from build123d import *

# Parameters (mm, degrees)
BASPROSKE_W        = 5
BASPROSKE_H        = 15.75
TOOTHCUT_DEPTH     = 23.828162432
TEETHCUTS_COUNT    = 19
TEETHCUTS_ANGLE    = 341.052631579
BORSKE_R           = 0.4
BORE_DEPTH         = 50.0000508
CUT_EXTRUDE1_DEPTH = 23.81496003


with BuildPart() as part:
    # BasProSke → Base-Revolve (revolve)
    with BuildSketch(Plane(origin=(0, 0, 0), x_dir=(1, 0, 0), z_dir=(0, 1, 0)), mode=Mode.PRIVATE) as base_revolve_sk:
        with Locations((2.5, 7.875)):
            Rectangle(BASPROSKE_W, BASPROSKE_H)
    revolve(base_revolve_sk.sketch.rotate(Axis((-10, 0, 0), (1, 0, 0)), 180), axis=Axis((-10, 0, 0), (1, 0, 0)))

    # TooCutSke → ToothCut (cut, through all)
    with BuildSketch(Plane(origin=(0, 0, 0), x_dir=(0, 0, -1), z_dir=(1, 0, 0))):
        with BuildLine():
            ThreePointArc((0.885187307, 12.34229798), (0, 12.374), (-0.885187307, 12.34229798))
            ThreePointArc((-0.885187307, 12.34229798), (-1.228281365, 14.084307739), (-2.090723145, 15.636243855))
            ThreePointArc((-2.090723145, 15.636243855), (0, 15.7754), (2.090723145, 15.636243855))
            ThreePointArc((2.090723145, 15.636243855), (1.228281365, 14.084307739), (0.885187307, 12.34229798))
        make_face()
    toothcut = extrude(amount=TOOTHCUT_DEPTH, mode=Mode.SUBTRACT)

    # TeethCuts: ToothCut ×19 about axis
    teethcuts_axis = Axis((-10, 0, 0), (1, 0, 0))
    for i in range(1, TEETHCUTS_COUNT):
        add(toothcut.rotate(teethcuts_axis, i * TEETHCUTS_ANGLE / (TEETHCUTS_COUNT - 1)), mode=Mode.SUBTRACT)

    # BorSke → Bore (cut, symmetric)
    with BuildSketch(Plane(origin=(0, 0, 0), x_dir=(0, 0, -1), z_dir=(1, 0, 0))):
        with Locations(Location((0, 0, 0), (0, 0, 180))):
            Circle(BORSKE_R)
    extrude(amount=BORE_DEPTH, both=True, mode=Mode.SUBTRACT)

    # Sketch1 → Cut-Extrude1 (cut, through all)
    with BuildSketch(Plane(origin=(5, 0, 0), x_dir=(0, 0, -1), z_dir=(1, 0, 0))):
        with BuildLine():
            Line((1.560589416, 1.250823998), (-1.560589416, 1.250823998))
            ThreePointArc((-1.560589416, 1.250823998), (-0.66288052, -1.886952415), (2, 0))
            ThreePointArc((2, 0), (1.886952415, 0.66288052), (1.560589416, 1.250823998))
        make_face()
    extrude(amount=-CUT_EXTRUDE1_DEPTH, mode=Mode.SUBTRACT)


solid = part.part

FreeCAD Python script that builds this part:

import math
import FreeCAD as App
import Part
import Sketcher

V = App.Vector
Q = App.Units.Quantity

doc = App.newDocument("Part")
body = doc.addObject("PartDesign::Body", "Body")

# Sketch on XZ plane
sketch1 = body.newObject("Sketcher::SketchObject", "Sketch")
sketch1.AttachmentSupport = (doc.getObject("XZ_Plane"), [""])
sketch1.MapMode = "FlatFace"
sketch1.addGeometry(Part.LineSegment(V(0, -15.75, 0), V(0, 0, 0)), False)
sketch1.addGeometry(Part.LineSegment(V(0, 0, 0), V(5, 0, 0)), False)
sketch1.addGeometry(Part.LineSegment(V(5, 0, 0), V(5, -15.75, 0)), False)
sketch1.addGeometry(Part.LineSegment(V(5, -15.75, 0), V(0, -15.75, 0)), False)
sketch1.addConstraint(Sketcher.Constraint("Coincident", 0, 2, 1, 1))
sketch1.addConstraint(Sketcher.Constraint("Coincident", 1, 2, 2, 1))
sketch1.addConstraint(Sketcher.Constraint("Coincident", 2, 2, 3, 1))
sketch1.addConstraint(Sketcher.Constraint("Coincident", 3, 2, 0, 1))
sketch1.addConstraint(Sketcher.Constraint("Vertical", 0))
sketch1.addConstraint(Sketcher.Constraint("Horizontal", 1))
sketch1.addConstraint(Sketcher.Constraint("Vertical", 2))
sketch1.addConstraint(Sketcher.Constraint("Horizontal", 3))
sketch1.addConstraint(Sketcher.Constraint("Coincident", 0, 2, -1, 1))
sketch1.addConstraint(Sketcher.Constraint("DistanceX", 1, 1, 1, 2, Q("5 mm")))
sketch1.addConstraint(Sketcher.Constraint("DistanceY", 0, 1, 0, 2, Q("15.75 mm")))
revolution = body.newObject("PartDesign::Revolution", "Revolution")
revolution.Profile = sketch1
revolution.ReferenceAxis = (sketch1, ["H_Axis"])
revolution.Angle = 360

# Sketch on YZ plane
sketch2 = body.newObject("Sketcher::SketchObject", "Sketch001")
sketch2.AttachmentSupport = (doc.getObject("YZ_Plane"), [""])
sketch2.MapMode = "FlatFace"
sketch2.addGeometry(Part.ArcOfCircle(Part.Circle(V(0, 0, 0), V(0, 0, 1), 12.374), math.radians(-4.102219), math.radians(4.102219)), False)
sketch2.addGeometry(Part.ArcOfCircle(Part.Circle(V(12.125271, -6.581054, 0), V(0, 0, 1), 5.7), math.radians(51.978286), math.radians(87.817946)), False)
sketch2.addGeometry(Part.ArcOfCircle(Part.Circle(V(0, 0, 0), V(0, 0, 1), 15.7754), math.radians(-7.61585), math.radians(7.61585)), False)
sketch2.addGeometry(Part.ArcOfCircle(Part.Circle(V(12.125271, 6.581054, 0), V(0, 0, 1), 5.7), math.radians(-87.817946), math.radians(-51.978286)), False)
sketch2.addConstraint(Sketcher.Constraint("Coincident", 0, 1, 1, 2))
sketch2.addConstraint(Sketcher.Constraint("Coincident", 1, 1, 2, 1))
sketch2.addConstraint(Sketcher.Constraint("Coincident", 2, 2, 3, 2))
sketch2.addConstraint(Sketcher.Constraint("Coincident", 3, 1, 0, 2))
sketch2.addConstraint(Sketcher.Constraint("Coincident", 0, 3, -1, 1))
sketch2.addConstraint(Sketcher.Constraint("Coincident", 2, 3, -1, 1))
sketch2.addConstraint(Sketcher.Constraint("Equal", 1, 3))
sketch2.addConstraint(Sketcher.Constraint("Symmetric", 1, 3, 3, 3, -1))
sketch2.addConstraint(Sketcher.Constraint("Radius", 1, Q("5.7 mm")))
sketch2.addConstraint(Sketcher.Constraint("Radius", 0, Q("12.374 mm")))
sketch2.addConstraint(Sketcher.Constraint("Radius", 2, Q("15.7754 mm")))
sketch2.addConstraint(Sketcher.Constraint("DistanceX", -1, 1, 1, 3, Q("12.125271 mm")))
sketch2.addConstraint(Sketcher.Constraint("DistanceY", 1, 3, 3, 3, Q("13.162108 mm")))
pocket1 = body.newObject("PartDesign::Pocket", "Pocket")
pocket1.Profile = sketch2
pocket1.Type = "ThroughAll"
pocket1.Reversed = True
doc.recompute()

polarpattern = body.newObject("PartDesign::PolarPattern", "PolarPattern")
polarpattern.Originals = [pocket1]
polarpattern.Axis = (doc.getObject("X_Axis"), [""])
polarpattern.Angle = 360
polarpattern.Occurrences = 19
body.Tip = polarpattern

# Sketch on YZ plane
sketch3 = body.newObject("Sketcher::SketchObject", "Sketch002")
sketch3.AttachmentSupport = (doc.getObject("YZ_Plane"), [""])
sketch3.MapMode = "FlatFace"
sketch3.addGeometry(Part.Circle(V(0, 0, 0), V(0, 0, 1), 0.4), False)
sketch3.addConstraint(Sketcher.Constraint("Coincident", 0, 3, -1, 1))
sketch3.addConstraint(Sketcher.Constraint("Diameter", 0, Q("0.8 mm")))
pocket2 = body.newObject("PartDesign::Pocket", "Pocket001")
pocket2.Profile = sketch3
pocket2.Length = 100.000102
pocket2.Midplane = True

# Sketch on YZ plane
sketch4 = body.newObject("Sketcher::SketchObject", "Sketch003")
sketch4.AttachmentSupport = (doc.getObject("YZ_Plane"), [""])
sketch4.MapMode = "FlatFace"
sketch4.AttachmentOffset = App.Placement(V(0, 0, 5), App.Rotation())
sketch4.addGeometry(Part.LineSegment(V(1.250824, -1.560589, 0), V(1.250824, 1.560589, 0)), False)
sketch4.addGeometry(Part.ArcOfCircle(Part.Circle(V(0, 0, 0), V(0, 0, 1), 2), math.radians(51.287567), math.radians(270)), False)
sketch4.addGeometry(Part.ArcOfCircle(Part.Circle(V(0, 0, 0), V(0, 0, 1), 2), math.radians(-90), math.radians(-51.287566)), False)
sketch4.addConstraint(Sketcher.Constraint("Coincident", 0, 2, 1, 1))
sketch4.addConstraint(Sketcher.Constraint("Tangent", 1, 2, 2, 1))
sketch4.addConstraint(Sketcher.Constraint("Coincident", 2, 2, 0, 1))
sketch4.addConstraint(Sketcher.Constraint("Vertical", 0))
sketch4.addConstraint(Sketcher.Constraint("Coincident", 1, 3, -1, 1))
sketch4.addConstraint(Sketcher.Constraint("Equal", 1, 2))
sketch4.addConstraint(Sketcher.Constraint("PointOnObject", 1, 2, -2))
sketch4.addConstraint(Sketcher.Constraint("Radius", 1, Q("2 mm")))
sketch4.addConstraint(Sketcher.Constraint("DistanceY", 0, 1, 0, 2, Q("3.121179 mm")))
pocket3 = body.newObject("PartDesign::Pocket", "Pocket002")
pocket3.Profile = sketch4
pocket3.Type = "ThroughAll"

doc.recompute()
